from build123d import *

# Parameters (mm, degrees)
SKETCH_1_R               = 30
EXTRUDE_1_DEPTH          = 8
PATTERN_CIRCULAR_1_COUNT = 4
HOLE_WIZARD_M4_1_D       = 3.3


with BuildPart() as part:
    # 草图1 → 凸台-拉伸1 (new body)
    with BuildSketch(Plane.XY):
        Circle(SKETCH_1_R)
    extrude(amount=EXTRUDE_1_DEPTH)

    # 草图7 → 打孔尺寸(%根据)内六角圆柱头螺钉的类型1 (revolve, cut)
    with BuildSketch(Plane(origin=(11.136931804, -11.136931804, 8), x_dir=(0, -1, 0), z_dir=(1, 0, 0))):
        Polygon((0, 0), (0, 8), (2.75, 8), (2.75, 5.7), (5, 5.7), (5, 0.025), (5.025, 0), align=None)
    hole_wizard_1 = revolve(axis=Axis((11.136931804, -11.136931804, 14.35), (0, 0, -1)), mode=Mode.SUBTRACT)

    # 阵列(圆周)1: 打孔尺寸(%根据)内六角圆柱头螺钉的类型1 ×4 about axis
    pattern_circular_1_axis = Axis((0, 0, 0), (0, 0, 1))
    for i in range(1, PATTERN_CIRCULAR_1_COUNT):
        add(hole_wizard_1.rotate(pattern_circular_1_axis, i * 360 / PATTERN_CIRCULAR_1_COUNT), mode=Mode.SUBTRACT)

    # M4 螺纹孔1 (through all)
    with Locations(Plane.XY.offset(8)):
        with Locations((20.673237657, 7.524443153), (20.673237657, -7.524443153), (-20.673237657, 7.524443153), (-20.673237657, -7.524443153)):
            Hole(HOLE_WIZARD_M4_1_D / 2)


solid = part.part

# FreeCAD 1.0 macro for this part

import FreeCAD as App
import Part
import Sketcher
from FreeCAD import Vector
Q = App.Units.Quantity


def add_polygon(sketch, points):
    """Adds a closed chain of lines whose ends are joined by coincident constraints."""
    first, n = sketch.GeometryCount, len(points)
    for a, b in zip(points, points[1:] + points[:1]):
        sketch.addGeometry(Part.LineSegment(App.Vector(*a, 0), App.Vector(*b, 0)), False)
    for i in range(n):
        sketch.addConstraint(Sketcher.Constraint("Coincident", first + i, 2, first + (i + 1) % n, 1))

doc = App.newDocument("Part")
body = doc.addObject("PartDesign::Body", "Body")

# Sketch on XY plane
sketch1 = body.newObject("Sketcher::SketchObject", "Sketch")
sketch1.AttachmentSupport = (doc.getObject("XY_Plane"), [""])
sketch1.MapMode = "FlatFace"
sketch1.addGeometry(Part.Circle(Vector(0, 0, 0), Vector(0, 0, 1), 30), False)
sketch1.addConstraint([
    Sketcher.Constraint("Coincident", 0, 3, -1, 1),
    Sketcher.Constraint("Diameter", 0, Q("60 mm")),
])
pad1 = body.newObject("PartDesign::Pad", "Pad")
pad1.Profile = sketch1
pad1.Length = 8

# Sketch on YZ plane
sketch2 = body.newObject("Sketcher::SketchObject", "Sketch001")
sketch2.AttachmentSupport = (doc.getObject("YZ_Plane"), [""])
sketch2.MapMode = "FlatFace"
sketch2.AttachmentOffset = App.Placement(Vector(0, 0, 11.136932), App.Rotation())
add_polygon(sketch2, [(-11.137, 0), (-11.137, 8), (-16.162, 8), (-16.137, 7.975), (-16.137, 2.3), (-13.887, 2.3), (-13.887, 0)])  # lines 0-6
sketch2.addGeometry(Part.LineSegment(Vector(-11.137, 8, 0), Vector(-11.137, 0, 0)), True)  # axis
sketch2.addConstraint([
    Sketcher.Constraint("Vertical", 0),
    Sketcher.Constraint("Horizontal", 1),
    Sketcher.Constraint("Vertical", 3),
    Sketcher.Constraint("Horizontal", 4),
    Sketcher.Constraint("Vertical", 5),
    Sketcher.Constraint("Horizontal", 6),
    Sketcher.Constraint("Vertical", 7),
    Sketcher.Constraint("Coincident", 7, 1, 0, 2),
    Sketcher.Constraint("PointOnObject", 5, 2, -1),
    Sketcher.Constraint("PointOnObject", 7, 2, -1),
    Sketcher.Constraint("DistanceY", 0, 1, 0, 2, Q("8 mm")),
    Sketcher.Constraint("Angle", 2, Q("-45 deg")),
    Sketcher.Constraint("DistanceY", 5, 2, 5, 1, Q("2.3 mm")),
    Sketcher.Constraint("DistanceX", 2, 2, 0, 2, Q("5 mm")),
    Sketcher.Constraint("DistanceX", 4, 1, 4, 2, Q("2.25 mm")),
    Sketcher.Constraint("DistanceX", 1, 2, 1, 1, Q("5.025 mm")),
    Sketcher.Constraint("DistanceX", 0, 2, -1, 1, Q("11.136932 mm")),
])
groove = body.newObject("PartDesign::Groove", "Groove")
groove.Profile = sketch2
groove.ReferenceAxis = (sketch2, ["Axis0"])
groove.Angle = 360
doc.recompute()

polarpattern = body.newObject("PartDesign::PolarPattern", "PolarPattern")
polarpattern.Originals = [groove]
polarpattern.Axis = (doc.getObject("Z_Axis"), [""])
polarpattern.Angle = 360
polarpattern.Occurrences = 4
body.Tip = polarpattern

# Sketch on XY plane
sketch3 = body.newObject("Sketcher::SketchObject", "Sketch002")
sketch3.AttachmentSupport = (doc.getObject("XY_Plane"), [""])
sketch3.MapMode = "FlatFace"
sketch3.AttachmentOffset = App.Placement(Vector(0, 0, 8), App.Rotation())
sketch3.addGeometry([
    Part.Circle(Vector(20.7, 7.5, 0), Vector(0, 0, 1), 1.6),
    Part.Circle(Vector(20.7, -7.5, 0), Vector(0, 0, 1), 1.6),
    Part.Circle(Vector(-20.7, 7.5, 0), Vector(0, 0, 1), 1.6),
    Part.Circle(Vector(-20.7, -7.5, 0), Vector(0, 0, 1), 1.6),
], False)
sketch3.addConstraint([
    Sketcher.Constraint("Equal", 0, 1),
    Sketcher.Constraint("Equal", 1, 2),
    Sketcher.Constraint("Equal", 2, 3),
    Sketcher.Constraint("Symmetric", 1, 3, 2, 3, -1, 1),
    Sketcher.Constraint("Symmetric", 0, 3, 3, 3, -1, 1),
    Sketcher.Constraint("Symmetric", 0, 3, 2, 3, -2),
    Sketcher.Constraint("Diameter", 0, Q("3.3 mm")),
    Sketcher.Constraint("DistanceX", -1, 1, 0, 3, Q("20.673238 mm")),
    Sketcher.Constraint("DistanceY", -1, 1, 0, 3, Q("7.524443 mm")),
])
doc.recompute()
hole = body.newObject("PartDesign::Hole", "Hole")
hole.Profile = sketch3
hole.ThreadType = "None"
hole.Diameter = 3.3
hole.DepthType = "ThroughAll"

doc.recompute()
